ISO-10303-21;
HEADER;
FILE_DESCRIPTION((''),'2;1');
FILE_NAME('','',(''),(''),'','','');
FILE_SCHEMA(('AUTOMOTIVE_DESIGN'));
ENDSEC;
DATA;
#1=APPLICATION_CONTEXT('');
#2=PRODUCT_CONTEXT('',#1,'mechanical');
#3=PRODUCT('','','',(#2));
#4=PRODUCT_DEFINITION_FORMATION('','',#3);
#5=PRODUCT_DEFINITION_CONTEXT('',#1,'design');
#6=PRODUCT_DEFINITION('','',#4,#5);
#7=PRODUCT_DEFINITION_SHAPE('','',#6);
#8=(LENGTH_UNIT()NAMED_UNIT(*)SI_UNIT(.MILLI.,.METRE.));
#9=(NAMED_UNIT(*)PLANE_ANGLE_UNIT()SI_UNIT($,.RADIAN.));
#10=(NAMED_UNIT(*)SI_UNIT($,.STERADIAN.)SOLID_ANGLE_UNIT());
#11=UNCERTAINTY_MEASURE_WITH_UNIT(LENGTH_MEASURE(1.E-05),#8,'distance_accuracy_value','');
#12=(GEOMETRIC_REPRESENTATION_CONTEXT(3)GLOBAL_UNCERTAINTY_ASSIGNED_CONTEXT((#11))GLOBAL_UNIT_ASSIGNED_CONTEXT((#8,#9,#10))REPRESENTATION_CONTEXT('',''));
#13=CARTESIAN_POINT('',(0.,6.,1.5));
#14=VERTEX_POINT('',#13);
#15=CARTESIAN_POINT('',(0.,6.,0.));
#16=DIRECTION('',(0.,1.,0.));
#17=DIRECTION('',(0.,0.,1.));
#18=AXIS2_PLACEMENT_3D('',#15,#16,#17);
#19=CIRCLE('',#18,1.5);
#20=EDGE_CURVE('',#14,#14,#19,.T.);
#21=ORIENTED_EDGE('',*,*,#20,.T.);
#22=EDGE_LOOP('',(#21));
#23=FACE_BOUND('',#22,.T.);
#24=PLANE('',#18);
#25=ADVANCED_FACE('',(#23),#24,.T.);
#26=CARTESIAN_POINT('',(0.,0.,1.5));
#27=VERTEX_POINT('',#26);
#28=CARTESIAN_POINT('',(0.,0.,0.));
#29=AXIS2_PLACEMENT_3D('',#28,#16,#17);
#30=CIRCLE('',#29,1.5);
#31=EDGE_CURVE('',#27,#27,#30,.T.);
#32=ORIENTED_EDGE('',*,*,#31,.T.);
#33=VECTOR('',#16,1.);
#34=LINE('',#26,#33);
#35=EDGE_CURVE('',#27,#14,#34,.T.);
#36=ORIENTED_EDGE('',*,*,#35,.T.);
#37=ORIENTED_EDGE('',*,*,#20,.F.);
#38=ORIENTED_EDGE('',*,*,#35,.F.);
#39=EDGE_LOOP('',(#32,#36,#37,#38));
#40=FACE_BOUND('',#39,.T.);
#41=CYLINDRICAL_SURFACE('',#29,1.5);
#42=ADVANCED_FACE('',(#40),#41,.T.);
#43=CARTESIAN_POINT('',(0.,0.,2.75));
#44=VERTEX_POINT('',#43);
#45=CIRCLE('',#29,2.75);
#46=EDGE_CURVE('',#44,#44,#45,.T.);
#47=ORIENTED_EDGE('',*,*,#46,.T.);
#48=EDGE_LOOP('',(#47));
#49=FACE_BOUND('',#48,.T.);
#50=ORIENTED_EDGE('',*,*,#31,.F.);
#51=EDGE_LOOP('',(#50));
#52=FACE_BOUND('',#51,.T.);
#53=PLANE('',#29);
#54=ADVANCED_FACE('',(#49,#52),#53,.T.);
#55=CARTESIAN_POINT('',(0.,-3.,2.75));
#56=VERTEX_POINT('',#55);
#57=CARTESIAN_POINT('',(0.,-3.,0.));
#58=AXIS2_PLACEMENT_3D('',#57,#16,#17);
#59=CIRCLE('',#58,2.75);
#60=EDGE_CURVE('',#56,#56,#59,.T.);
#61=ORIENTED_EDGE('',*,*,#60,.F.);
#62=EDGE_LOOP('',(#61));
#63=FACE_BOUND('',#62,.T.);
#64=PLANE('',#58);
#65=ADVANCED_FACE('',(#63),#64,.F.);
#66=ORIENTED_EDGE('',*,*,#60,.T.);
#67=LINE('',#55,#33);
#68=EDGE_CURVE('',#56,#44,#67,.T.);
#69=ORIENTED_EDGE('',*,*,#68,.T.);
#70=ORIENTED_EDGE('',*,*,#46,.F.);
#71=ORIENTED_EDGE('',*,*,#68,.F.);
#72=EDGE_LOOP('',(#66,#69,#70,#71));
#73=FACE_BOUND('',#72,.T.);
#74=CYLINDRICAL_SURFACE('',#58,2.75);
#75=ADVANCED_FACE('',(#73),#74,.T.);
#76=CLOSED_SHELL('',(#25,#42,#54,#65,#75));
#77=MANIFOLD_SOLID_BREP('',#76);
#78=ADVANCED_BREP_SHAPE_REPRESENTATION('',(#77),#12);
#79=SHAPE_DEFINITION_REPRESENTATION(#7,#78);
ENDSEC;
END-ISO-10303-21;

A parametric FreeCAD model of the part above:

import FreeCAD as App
import Part
import Sketcher
from FreeCAD import Vector
Q = App.Units.Quantity

doc = App.newDocument("Part")
body = doc.addObject("PartDesign::Body", "Body")

sketch1 = body.newObject("Sketcher::SketchObject", "Sketch")
sketch1.AttachmentSupport = (doc.getObject("YZ_Plane"), [""])
sketch1.MapMode = "FlatFace"
sketch1.addGeometry([
    Part.LineSegment(Vector(-3, 2.8, 0), Vector(-3, 0, 0)),
    Part.LineSegment(Vector(-3, 0, 0), Vector(6, 0, 0)),
    Part.LineSegment(Vector(6, 0, 0), Vector(6, 1.5, 0)),
    Part.LineSegment(Vector(6, 1.5, 0), Vector(0, 1.5, 0)),
    Part.LineSegment(Vector(0, 1.5, 0), Vector(0, 2.8, 0)),
    Part.LineSegment(Vector(0, 2.8, 0), Vector(-3, 2.8, 0)),
], False)
sketch1.addConstraint([
    Sketcher.Constraint("Coincident", 0, 2, 1, 1),
    Sketcher.Constraint("Coincident", 1, 2, 2, 1),
    Sketcher.Constraint("Coincident", 2, 2, 3, 1),
    Sketcher.Constraint("Coincident", 3, 2, 4, 1),
    Sketcher.Constraint("Coincident", 4, 2, 5, 1),
    Sketcher.Constraint("Coincident", 5, 2, 0, 1),
    Sketcher.Constraint("Vertical", 0),
    Sketcher.Constraint("Horizontal", 1),
    Sketcher.Constraint("Vertical", 2),
    Sketcher.Constraint("Horizontal", 3),
    Sketcher.Constraint("Vertical", 4),
    Sketcher.Constraint("Horizontal", 5),
    Sketcher.Constraint("PointOnObject", 0, 2, -1),
    Sketcher.Constraint("PointOnObject", 3, 2, -2),
    Sketcher.Constraint("DistanceX", 1, 1, 1, 2, Q("9 mm")),
    Sketcher.Constraint("DistanceX", 3, 2, 3, 1, Q("6 mm")),
    Sketcher.Constraint("DistanceY", 2, 1, 2, 2, Q("1.5 mm")),
    Sketcher.Constraint("DistanceY", 0, 2, 0, 1, Q("2.75 mm")),
])
revolution = body.newObject("PartDesign::Revolution", "Revolution")
revolution.Profile = sketch1
revolution.ReferenceAxis = (sketch1, ["H_Axis"])
revolution.Angle = 360

doc.recompute()
